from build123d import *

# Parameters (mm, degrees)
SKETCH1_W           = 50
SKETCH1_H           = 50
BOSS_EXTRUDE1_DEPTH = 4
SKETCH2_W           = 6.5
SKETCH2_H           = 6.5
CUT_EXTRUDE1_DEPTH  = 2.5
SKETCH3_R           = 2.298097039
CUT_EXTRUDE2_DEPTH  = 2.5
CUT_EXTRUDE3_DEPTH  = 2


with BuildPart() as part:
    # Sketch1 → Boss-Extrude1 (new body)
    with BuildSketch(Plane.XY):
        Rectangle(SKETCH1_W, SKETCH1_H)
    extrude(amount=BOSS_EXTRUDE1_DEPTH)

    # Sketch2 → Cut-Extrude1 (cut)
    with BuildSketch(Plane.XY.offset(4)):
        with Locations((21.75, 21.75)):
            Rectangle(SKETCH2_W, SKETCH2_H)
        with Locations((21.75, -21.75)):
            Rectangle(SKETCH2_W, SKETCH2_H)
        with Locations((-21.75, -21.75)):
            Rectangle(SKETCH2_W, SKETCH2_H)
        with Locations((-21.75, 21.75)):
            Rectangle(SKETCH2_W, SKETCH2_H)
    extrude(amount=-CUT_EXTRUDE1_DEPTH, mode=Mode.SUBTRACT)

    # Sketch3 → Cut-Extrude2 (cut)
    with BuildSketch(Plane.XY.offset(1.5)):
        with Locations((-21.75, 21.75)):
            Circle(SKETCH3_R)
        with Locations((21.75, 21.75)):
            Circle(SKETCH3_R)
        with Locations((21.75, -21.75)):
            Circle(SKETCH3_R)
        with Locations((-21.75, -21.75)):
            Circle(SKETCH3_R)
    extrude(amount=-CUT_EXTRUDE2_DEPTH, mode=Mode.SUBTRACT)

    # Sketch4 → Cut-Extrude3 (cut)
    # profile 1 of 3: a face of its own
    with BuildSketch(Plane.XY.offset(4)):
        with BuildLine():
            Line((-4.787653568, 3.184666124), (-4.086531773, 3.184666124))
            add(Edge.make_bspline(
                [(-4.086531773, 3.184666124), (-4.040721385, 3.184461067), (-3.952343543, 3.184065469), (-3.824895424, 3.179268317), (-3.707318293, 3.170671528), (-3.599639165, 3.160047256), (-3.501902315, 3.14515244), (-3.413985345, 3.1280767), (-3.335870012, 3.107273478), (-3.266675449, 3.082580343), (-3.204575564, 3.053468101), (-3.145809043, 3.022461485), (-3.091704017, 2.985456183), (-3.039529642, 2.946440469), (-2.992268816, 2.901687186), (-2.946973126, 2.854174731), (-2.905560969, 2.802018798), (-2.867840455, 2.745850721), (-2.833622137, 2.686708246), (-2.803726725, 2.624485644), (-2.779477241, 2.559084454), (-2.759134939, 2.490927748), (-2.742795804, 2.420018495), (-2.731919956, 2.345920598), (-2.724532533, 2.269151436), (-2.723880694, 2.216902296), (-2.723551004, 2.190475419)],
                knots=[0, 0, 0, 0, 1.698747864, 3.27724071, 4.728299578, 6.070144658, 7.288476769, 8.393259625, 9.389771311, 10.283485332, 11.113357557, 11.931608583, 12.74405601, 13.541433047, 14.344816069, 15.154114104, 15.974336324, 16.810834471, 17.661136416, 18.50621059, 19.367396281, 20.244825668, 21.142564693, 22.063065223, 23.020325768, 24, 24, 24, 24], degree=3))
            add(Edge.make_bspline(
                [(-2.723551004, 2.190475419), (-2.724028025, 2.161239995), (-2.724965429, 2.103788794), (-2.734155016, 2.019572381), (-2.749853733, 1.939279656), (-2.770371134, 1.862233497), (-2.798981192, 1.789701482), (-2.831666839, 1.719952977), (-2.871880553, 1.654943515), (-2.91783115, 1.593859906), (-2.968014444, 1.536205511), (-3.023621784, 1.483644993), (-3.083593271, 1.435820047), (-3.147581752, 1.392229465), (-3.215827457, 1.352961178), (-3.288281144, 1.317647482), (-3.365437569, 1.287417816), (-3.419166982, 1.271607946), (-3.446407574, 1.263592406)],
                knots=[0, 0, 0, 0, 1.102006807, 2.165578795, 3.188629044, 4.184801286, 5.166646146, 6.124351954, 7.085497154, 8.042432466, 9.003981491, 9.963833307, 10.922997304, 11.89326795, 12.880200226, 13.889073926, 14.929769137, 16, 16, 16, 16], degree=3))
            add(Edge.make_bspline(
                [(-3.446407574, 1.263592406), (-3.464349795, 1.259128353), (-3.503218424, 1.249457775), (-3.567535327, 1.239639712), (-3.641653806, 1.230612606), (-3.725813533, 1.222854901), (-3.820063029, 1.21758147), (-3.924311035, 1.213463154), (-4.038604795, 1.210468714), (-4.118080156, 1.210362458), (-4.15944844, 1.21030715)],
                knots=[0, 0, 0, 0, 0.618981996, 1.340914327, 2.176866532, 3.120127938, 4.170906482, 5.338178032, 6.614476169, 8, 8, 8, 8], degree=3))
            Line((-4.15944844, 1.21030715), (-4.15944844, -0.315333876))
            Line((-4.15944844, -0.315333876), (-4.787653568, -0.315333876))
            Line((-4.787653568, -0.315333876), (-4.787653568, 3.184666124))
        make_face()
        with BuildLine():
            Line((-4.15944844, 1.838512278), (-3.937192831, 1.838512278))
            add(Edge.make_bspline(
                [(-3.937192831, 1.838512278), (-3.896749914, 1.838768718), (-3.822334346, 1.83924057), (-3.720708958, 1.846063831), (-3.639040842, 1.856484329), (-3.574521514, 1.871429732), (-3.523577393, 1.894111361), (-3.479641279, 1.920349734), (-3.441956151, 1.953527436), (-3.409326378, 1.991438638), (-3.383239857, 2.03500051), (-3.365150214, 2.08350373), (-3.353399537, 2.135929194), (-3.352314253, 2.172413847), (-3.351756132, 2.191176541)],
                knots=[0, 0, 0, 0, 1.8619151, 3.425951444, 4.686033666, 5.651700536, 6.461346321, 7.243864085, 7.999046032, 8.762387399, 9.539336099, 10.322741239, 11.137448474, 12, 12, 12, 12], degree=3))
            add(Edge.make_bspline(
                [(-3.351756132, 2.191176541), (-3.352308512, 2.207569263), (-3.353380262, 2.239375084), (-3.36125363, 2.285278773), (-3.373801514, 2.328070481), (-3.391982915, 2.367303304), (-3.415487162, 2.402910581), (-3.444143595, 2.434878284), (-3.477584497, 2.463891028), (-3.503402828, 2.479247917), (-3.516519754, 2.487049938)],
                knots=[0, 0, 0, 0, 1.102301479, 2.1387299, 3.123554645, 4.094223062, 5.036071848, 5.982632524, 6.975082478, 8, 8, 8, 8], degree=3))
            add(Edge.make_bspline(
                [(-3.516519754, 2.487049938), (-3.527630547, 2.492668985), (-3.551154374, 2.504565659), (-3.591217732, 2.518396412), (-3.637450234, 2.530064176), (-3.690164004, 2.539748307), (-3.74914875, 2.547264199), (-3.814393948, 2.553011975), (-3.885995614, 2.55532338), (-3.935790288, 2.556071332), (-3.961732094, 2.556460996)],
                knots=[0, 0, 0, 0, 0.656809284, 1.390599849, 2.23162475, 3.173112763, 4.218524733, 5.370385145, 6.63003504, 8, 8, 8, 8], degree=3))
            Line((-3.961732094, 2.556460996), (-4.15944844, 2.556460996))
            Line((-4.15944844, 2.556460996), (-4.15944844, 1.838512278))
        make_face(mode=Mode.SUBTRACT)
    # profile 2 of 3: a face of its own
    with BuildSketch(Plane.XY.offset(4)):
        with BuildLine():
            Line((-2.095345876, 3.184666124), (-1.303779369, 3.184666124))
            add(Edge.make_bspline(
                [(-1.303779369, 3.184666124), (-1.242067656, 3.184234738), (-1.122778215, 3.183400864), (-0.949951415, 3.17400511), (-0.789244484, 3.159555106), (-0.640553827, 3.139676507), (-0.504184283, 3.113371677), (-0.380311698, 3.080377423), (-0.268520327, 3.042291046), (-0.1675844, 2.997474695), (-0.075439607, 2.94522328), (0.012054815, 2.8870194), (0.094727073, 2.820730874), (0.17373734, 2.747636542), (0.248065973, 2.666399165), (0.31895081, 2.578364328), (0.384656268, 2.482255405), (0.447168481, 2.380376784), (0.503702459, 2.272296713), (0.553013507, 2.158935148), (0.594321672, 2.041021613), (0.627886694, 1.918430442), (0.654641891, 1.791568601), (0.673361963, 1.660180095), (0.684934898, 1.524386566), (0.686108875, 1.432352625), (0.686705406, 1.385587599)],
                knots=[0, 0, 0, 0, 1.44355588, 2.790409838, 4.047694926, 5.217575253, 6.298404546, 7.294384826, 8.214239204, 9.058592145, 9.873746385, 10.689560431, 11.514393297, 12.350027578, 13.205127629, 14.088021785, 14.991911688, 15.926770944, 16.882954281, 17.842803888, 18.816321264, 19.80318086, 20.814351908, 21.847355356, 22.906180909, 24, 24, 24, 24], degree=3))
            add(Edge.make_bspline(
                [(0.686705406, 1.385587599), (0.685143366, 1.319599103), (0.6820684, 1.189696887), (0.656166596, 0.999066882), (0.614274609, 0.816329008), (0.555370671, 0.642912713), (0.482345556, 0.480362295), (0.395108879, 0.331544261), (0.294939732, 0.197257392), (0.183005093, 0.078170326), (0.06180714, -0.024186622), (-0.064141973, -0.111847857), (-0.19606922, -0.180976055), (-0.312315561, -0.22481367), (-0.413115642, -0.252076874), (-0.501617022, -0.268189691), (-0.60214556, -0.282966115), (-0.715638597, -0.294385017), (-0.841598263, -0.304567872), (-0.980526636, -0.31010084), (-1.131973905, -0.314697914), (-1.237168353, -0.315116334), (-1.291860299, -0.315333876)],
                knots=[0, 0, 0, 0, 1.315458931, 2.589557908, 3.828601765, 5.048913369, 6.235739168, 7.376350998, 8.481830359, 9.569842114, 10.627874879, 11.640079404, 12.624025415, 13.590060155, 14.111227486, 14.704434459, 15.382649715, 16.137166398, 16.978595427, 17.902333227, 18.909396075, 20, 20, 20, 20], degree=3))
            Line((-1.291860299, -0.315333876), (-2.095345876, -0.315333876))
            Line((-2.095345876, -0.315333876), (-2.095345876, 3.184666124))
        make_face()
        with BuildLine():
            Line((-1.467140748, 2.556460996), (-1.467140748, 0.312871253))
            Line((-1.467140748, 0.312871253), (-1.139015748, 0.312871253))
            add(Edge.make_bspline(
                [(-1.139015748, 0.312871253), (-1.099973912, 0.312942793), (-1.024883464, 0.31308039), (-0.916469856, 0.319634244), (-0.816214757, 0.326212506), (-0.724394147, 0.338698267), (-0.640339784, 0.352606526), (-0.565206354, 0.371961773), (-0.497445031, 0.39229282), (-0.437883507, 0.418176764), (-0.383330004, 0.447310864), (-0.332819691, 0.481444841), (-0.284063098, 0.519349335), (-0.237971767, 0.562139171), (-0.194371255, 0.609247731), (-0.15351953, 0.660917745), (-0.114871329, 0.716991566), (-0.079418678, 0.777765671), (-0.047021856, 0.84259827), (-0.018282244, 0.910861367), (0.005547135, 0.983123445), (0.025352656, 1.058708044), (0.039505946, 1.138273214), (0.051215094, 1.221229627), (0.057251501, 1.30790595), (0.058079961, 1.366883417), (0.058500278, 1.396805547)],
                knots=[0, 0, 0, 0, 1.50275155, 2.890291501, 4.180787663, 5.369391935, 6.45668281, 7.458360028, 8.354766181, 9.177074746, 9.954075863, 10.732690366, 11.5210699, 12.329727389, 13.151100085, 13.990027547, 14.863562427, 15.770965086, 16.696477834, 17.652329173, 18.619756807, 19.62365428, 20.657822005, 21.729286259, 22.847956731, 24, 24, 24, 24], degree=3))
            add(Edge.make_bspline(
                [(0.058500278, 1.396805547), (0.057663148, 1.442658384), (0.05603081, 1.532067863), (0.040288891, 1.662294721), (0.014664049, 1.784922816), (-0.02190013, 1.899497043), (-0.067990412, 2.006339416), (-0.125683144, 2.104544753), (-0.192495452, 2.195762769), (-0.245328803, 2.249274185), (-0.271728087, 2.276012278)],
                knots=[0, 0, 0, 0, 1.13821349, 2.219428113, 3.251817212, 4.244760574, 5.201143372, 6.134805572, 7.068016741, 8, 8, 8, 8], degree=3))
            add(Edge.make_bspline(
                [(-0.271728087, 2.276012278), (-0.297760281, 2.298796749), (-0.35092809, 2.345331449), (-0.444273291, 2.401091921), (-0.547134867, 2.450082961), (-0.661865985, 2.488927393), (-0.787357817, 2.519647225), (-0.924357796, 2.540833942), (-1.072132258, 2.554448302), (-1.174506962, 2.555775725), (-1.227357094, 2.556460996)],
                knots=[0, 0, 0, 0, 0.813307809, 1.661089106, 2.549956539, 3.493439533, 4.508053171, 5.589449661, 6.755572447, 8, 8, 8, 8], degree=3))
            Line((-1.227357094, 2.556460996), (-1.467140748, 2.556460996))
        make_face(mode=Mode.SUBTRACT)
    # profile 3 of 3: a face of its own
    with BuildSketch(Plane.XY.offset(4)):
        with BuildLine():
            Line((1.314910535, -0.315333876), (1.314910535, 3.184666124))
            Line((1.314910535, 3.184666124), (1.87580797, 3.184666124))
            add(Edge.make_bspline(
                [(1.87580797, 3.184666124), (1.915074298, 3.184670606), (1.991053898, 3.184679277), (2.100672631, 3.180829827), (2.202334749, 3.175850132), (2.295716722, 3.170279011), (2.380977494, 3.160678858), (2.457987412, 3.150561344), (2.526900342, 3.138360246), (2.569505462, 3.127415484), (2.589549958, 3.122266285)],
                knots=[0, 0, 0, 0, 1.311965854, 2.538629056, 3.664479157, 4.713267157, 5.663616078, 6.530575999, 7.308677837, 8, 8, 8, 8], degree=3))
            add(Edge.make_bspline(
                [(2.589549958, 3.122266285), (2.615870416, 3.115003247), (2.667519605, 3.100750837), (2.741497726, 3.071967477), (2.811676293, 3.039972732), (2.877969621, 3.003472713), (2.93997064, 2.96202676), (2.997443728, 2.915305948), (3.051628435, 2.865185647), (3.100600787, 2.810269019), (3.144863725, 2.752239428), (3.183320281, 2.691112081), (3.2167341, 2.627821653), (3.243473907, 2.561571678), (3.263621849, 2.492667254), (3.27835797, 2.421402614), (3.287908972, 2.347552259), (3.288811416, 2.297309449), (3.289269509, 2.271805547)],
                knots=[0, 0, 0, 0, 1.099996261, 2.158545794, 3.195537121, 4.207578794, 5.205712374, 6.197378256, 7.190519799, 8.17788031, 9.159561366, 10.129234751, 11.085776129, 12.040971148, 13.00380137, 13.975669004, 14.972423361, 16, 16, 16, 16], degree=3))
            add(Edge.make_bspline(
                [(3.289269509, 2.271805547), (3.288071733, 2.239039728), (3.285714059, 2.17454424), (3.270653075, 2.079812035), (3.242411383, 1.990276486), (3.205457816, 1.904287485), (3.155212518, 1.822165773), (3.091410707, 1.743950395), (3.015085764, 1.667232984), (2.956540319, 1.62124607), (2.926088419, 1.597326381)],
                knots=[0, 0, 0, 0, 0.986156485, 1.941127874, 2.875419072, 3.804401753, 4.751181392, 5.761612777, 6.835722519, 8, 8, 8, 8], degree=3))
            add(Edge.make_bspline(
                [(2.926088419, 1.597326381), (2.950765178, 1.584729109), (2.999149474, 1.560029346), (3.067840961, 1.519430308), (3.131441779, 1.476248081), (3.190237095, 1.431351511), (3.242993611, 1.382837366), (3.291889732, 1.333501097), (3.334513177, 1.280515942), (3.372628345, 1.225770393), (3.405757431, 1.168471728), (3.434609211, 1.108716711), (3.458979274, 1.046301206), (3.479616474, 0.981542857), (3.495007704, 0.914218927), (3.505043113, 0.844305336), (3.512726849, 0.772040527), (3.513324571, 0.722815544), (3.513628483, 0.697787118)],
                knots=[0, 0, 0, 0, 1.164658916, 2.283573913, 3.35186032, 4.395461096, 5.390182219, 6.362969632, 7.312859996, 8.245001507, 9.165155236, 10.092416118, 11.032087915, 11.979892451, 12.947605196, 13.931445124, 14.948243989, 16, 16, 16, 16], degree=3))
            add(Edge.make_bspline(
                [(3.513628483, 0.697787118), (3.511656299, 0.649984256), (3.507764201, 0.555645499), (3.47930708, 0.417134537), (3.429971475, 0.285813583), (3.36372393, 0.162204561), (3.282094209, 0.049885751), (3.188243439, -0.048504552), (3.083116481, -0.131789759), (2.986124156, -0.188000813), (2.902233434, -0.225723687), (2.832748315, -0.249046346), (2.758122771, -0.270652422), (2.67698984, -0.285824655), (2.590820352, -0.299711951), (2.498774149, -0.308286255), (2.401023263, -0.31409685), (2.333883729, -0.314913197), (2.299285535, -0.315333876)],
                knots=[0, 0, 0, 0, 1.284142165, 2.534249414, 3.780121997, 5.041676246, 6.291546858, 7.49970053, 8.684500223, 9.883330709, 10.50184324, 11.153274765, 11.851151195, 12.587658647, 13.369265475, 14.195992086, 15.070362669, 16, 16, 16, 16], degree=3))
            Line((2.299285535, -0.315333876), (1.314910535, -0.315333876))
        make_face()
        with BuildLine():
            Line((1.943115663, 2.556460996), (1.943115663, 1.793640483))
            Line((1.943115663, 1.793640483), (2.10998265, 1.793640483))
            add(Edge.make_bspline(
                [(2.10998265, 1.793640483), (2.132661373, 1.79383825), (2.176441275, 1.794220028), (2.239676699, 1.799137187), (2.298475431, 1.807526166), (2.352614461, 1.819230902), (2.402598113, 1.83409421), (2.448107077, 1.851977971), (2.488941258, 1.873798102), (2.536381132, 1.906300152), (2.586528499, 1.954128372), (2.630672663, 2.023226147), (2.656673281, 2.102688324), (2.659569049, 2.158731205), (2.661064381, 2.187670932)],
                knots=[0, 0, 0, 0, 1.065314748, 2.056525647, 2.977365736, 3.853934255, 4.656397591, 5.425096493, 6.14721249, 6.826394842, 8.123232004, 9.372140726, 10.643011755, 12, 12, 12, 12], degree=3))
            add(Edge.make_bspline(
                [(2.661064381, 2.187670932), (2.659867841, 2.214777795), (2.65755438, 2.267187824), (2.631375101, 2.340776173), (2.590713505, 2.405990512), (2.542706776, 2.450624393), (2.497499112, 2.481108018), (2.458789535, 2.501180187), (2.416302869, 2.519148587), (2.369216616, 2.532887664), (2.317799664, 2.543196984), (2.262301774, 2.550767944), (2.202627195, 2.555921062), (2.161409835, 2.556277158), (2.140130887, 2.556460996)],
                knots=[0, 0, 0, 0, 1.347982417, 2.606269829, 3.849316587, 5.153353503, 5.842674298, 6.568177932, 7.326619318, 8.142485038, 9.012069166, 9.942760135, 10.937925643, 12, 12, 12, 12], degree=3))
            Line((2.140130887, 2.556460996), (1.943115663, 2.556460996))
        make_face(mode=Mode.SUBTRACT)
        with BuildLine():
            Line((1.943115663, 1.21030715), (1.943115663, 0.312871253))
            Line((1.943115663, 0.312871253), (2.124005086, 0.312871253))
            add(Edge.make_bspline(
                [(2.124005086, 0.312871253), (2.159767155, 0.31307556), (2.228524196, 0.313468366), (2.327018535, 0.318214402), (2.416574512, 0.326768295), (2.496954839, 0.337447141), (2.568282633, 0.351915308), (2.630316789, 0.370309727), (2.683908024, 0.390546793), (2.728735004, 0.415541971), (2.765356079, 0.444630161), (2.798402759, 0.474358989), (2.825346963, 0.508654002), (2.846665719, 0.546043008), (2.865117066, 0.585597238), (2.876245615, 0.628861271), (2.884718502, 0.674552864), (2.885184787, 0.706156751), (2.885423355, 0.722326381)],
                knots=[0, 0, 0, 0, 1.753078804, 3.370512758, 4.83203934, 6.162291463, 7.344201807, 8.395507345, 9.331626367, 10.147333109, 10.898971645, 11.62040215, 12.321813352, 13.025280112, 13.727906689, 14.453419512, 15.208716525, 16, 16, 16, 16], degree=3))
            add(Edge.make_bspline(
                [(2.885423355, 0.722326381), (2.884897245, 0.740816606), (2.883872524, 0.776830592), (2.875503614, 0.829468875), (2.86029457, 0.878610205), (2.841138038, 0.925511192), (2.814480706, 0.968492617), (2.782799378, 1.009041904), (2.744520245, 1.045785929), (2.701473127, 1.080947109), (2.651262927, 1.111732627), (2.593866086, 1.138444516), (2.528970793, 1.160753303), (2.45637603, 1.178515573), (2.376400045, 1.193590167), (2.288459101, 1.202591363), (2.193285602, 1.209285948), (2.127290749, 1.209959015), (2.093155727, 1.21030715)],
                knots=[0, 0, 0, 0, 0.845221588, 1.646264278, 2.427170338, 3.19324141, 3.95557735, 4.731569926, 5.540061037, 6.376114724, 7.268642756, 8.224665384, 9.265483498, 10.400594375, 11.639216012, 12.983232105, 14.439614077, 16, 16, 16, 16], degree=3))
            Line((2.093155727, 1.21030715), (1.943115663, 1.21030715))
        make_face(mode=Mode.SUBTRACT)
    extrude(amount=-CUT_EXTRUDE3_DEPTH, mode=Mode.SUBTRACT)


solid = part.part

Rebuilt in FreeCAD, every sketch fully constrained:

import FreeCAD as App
import Part
import Sketcher

doc = App.newDocument("Part")
body = doc.addObject("PartDesign::Body", "Body")

# Sketch on XY plane
sketch1 = body.newObject("Sketcher::SketchObject", "Sketch")
sketch1.AttachmentSupport = (doc.getObject("XY_Plane"), [""])
sketch1.MapMode = "FlatFace"
sketch1.addGeometry([
    Part.LineSegment(App.Vector(-25, 25, 0), App.Vector(-25, -25, 0)),
    Part.LineSegment(App.Vector(-25, -25, 0), App.Vector(25, -25, 0)),
    Part.LineSegment(App.Vector(25, -25, 0), App.Vector(25, 25, 0)),
    Part.LineSegment(App.Vector(25, 25, 0), App.Vector(-25, 25, 0)),
], False)
sketch1.addConstraint([
    Sketcher.Constraint("Coincident", 0, 2, 1, 1),
    Sketcher.Constraint("Coincident", 1, 2, 2, 1),
    Sketcher.Constraint("Coincident", 2, 2, 3, 1),
    Sketcher.Constraint("Coincident", 3, 2, 0, 1),
    Sketcher.Constraint("Vertical", 0),
    Sketcher.Constraint("Horizontal", 1),
    Sketcher.Constraint("Vertical", 2),
    Sketcher.Constraint("Horizontal", 3),
    Sketcher.Constraint("Symmetric", 0, 2, 2, 2, -1, 1),
    Sketcher.Constraint("Equal", 3, 0),
    Sketcher.Constraint("DistanceX", 1, 1, 1, 2, 50.0),
])
pad1 = body.newObject("PartDesign::Pad", "Pad")
pad1.Profile = sketch1
pad1.Length = 4

# Sketch on XY plane
sketch2 = body.newObject("Sketcher::SketchObject", "Sketch001")
sketch2.AttachmentSupport = (doc.getObject("XY_Plane"), [""])
sketch2.MapMode = "FlatFace"
sketch2.AttachmentOffset = App.Placement(App.Vector(0, 0, 4), App.Rotation())
sketch2.addGeometry([
    Part.LineSegment(App.Vector(18, 25, 0), App.Vector(18, 18, 0)),  # 0
    Part.LineSegment(App.Vector(18, 18, 0), App.Vector(25, 18, 0)),  # 1
    Part.LineSegment(App.Vector(25, 18, 0), App.Vector(25, 25, 0)),  # 2
    Part.LineSegment(App.Vector(25, 25, 0), App.Vector(18, 25, 0)),  # 3
    Part.LineSegment(App.Vector(18, -18, 0), App.Vector(18, -25, 0)),  # 4
    Part.LineSegment(App.Vector(18, -25, 0), App.Vector(25, -25, 0)),  # 5
    Part.LineSegment(App.Vector(25, -25, 0), App.Vector(25, -18, 0)),  # 6
    Part.LineSegment(App.Vector(25, -18, 0), App.Vector(18, -18, 0)),  # 7
    Part.LineSegment(App.Vector(-25, -18, 0), App.Vector(-25, -25, 0)),  # 8
    Part.LineSegment(App.Vector(-25, -25, 0), App.Vector(-18, -25, 0)),  # 9
    Part.LineSegment(App.Vector(-18, -25, 0), App.Vector(-18, -18, 0)),  # 10
    Part.LineSegment(App.Vector(-18, -18, 0), App.Vector(-25, -18, 0)),  # 11
    Part.LineSegment(App.Vector(-25, 25, 0), App.Vector(-25, 18, 0)),  # 12
    Part.LineSegment(App.Vector(-25, 18, 0), App.Vector(-18, 18, 0)),  # 13
    Part.LineSegment(App.Vector(-18, 18, 0), App.Vector(-18, 25, 0)),  # 14
    Part.LineSegment(App.Vector(-18, 25, 0), App.Vector(-25, 25, 0)),  # 15
], False)
sketch2.addConstraint([
    Sketcher.Constraint("Coincident", 0, 2, 1, 1),
    Sketcher.Constraint("Coincident", 1, 2, 2, 1),
    Sketcher.Constraint("Coincident", 2, 2, 3, 1),
    Sketcher.Constraint("Coincident", 3, 2, 0, 1),
    Sketcher.Constraint("Coincident", 4, 2, 5, 1),
    Sketcher.Constraint("Coincident", 5, 2, 6, 1),
    Sketcher.Constraint("Coincident", 6, 2, 7, 1),
    Sketcher.Constraint("Coincident", 7, 2, 4, 1),
    Sketcher.Constraint("Coincident", 8, 2, 9, 1),
    Sketcher.Constraint("Coincident", 9, 2, 10, 1),
    Sketcher.Constraint("Coincident", 10, 2, 11, 1),
    Sketcher.Constraint("Coincident", 11, 2, 8, 1),
    Sketcher.Constraint("Coincident", 12, 2, 13, 1),
    Sketcher.Constraint("Coincident", 13, 2, 14, 1),
    Sketcher.Constraint("Coincident", 14, 2, 15, 1),
    Sketcher.Constraint("Coincident", 15, 2, 12, 1),
    Sketcher.Constraint("Vertical", 0),
    Sketcher.Constraint("Horizontal", 1),
    Sketcher.Constraint("Vertical", 2),
    Sketcher.Constraint("Horizontal", 3),
    Sketcher.Constraint("Vertical", 4),
    Sketcher.Constraint("Horizontal", 5),
    Sketcher.Constraint("Vertical", 6),
    Sketcher.Constraint("Horizontal", 7),
    Sketcher.Constraint("Vertical", 8),
    Sketcher.Constraint("Horizontal", 9),
    Sketcher.Constraint("Vertical", 10),
    Sketcher.Constraint("Horizontal", 11),
    Sketcher.Constraint("Vertical", 12),
    Sketcher.Constraint("Horizontal", 13),
    Sketcher.Constraint("Vertical", 14),
    Sketcher.Constraint("Horizontal", 15),
    Sketcher.Constraint("Symmetric", 2, 2, 8, 2, -1, 1),
    Sketcher.Constraint("Symmetric", 0, 2, 10, 2, -1, 1),
    Sketcher.Constraint("Symmetric", 6, 2, 12, 2, -1, 1),
    Sketcher.Constraint("Symmetric", 4, 2, 14, 2, -1, 1),
    Sketcher.Constraint("Symmetric", 5, 2, 8, 2, -2),
    Sketcher.Constraint("Symmetric", 7, 2, 10, 2, -2),
    Sketcher.Constraint("Equal", 15, 0),
    Sketcher.Constraint("DistanceX", 1, 1, 1, 2, 6.5),
    Sketcher.Constraint("DistanceX", -1, 1, 1, 2, 25.0),
    Sketcher.Constraint("DistanceY", -1, 1, 2, 2, 25.0),
])
pocket1 = body.newObject("PartDesign::Pocket", "Pocket")
pocket1.Profile = sketch2
pocket1.Length = 2.5

# Sketch on XY plane
sketch3 = body.newObject("Sketcher::SketchObject", "Sketch002")
sketch3.AttachmentSupport = (doc.getObject("XY_Plane"), [""])
sketch3.MapMode = "FlatFace"
sketch3.AttachmentOffset = App.Placement(App.Vector(0, 0, 1.5), App.Rotation())
sketch3.addGeometry([
    Part.Circle(App.Vector(-21.8, 21.8, 0), App.Vector(0, 0, 1), 2.3),
    Part.Circle(App.Vector(21.8, 21.8, 0), App.Vector(0, 0, 1), 2.3),
    Part.Circle(App.Vector(21.8, -21.8, 0), App.Vector(0, 0, 1), 2.3),
    Part.Circle(App.Vector(-21.8, -21.8, 0), App.Vector(0, 0, 1), 2.3),
], False)
sketch3.addConstraint([
    Sketcher.Constraint("Equal", 0, 1),
    Sketcher.Constraint("Equal", 1, 2),
    Sketcher.Constraint("Equal", 2, 3),
    Sketcher.Constraint("Symmetric", 0, 3, 2, 3, -1, 1),
    Sketcher.Constraint("Symmetric", 1, 3, 3, 3, -1, 1),
    Sketcher.Constraint("Symmetric", 0, 3, 1, 3, -2),
    Sketcher.Constraint("DistanceX", 0, 3, 1, 3, 43.5),
    Sketcher.Constraint("DistanceY", 2, 3, 1, 3, 43.5),
    Sketcher.Constraint("Diameter", 0, 4.596194),
])
pocket2 = body.newObject("PartDesign::Pocket", "Pocket001")
pocket2.Profile = sketch3
pocket2.Length = 2.5

# Sketch on XY plane
sketch4 = body.newObject("Sketcher::SketchObject", "Sketch003")
sketch4.AttachmentSupport = (doc.getObject("XY_Plane"), [""])
sketch4.MapMode = "FlatFace"
sketch4.AttachmentOffset = App.Placement(App.Vector(0, 0, 4), App.Rotation())
sketch4.addGeometry([
    Part.LineSegment(App.Vector(-4.086532, 3.184666, 0), App.Vector(-4.787654, 3.184666, 0)),  # 0
    Part.LineSegment(App.Vector(-4.787654, 3.184666, 0), App.Vector(-4.787654, -0.315334, 0)),  # 1
    Part.LineSegment(App.Vector(-4.787654, -0.315334, 0), App.Vector(-4.159448, -0.315334, 0)),  # 2
    Part.LineSegment(App.Vector(-4.159448, -0.315334, 0), App.Vector(-4.159448, 1.210307, 0)),  # 3
    Part.BSplineCurve([App.Vector(-3.446408, 1.263592, 0), App.Vector(-3.46435, 1.259128, 0), App.Vector(-3.503218, 1.249458, 0), App.Vector(-3.567535, 1.23964, 0), App.Vector(-3.641654, 1.230613, 0), App.Vector(-3.725814, 1.222855, 0), App.Vector(-3.820063, 1.217581, 0), App.Vector(-3.924311, 1.213463, 0), App.Vector(-4.038605, 1.210469, 0), App.Vector(-4.11808, 1.210362, 0), App.Vector(-4.159448, 1.210307, 0)], [4, 1, 1, 1, 1, 1, 1, 1, 4], [0, 0.618981996, 1.340914327, 2.176866532, 3.120127938, 4.170906482, 5.338178032, 6.614476169, 8], False, 3, [1, 1, 1, 1, 1, 1, 1, 1, 1, 1, 1], False),  # 4
    Part.BSplineCurve([App.Vector(-2.723551, 2.190475, 0), App.Vector(-2.724028, 2.16124, 0), App.Vector(-2.724965, 2.103789, 0), App.Vector(-2.734155, 2.019572, 0), App.Vector(-2.749854, 1.93928, 0), App.Vector(-2.770371, 1.862233, 0), App.Vector(-2.798981, 1.789701, 0), App.Vector(-2.831667, 1.719953, 0), App.Vector(-2.871881, 1.654944, 0), App.Vector(-2.917831, 1.59386, 0), App.Vector(-2.968014, 1.536206, 0), App.Vector(-3.023622, 1.483645, 0), App.Vector(-3.083593, 1.43582, 0), App.Vector(-3.147582, 1.392229, 0), App.Vector(-3.215827, 1.352961, 0), App.Vector(-3.288281, 1.317647, 0), App.Vector(-3.365438, 1.287418, 0), App.Vector(-3.419167, 1.271608, 0), App.Vector(-3.446408, 1.263592, 0)], [4, 1, 1, 1, 1, 1, 1, 1, 1, 1, 1, 1, 1, 1, 1, 1, 4], [0, 1.102006807, 2.165578795, 3.188629044, 4.184801286, 5.166646146, 6.124351954, 7.085497154, 8.042432466, 9.003981491, 9.963833307, 10.922997304, 11.89326795, 12.880200226, 13.889073926, 14.929769137, 16], False, 3, [1, 1, 1, 1, 1, 1, 1, 1, 1, 1, 1, 1, 1, 1, 1, 1, 1, 1, 1], False),  # 5
    Part.BSplineCurve([App.Vector(-4.086532, 3.184666, 0), App.Vector(-4.040721, 3.184461, 0), App.Vector(-3.952344, 3.184065, 0), App.Vector(-3.824895, 3.179268, 0), App.Vector(-3.707318, 3.170672, 0), App.Vector(-3.599639, 3.160047, 0), App.Vector(-3.501902, 3.145152, 0), App.Vector(-3.413985, 3.128077, 0), App.Vector(-3.33587, 3.107273, 0), App.Vector(-3.266675, 3.08258, 0), App.Vector(-3.204576, 3.053468, 0), App.Vector(-3.145809, 3.022461, 0), App.Vector(-3.091704, 2.985456, 0), App.Vector(-3.03953, 2.94644, 0), App.Vector(-2.992269, 2.901687, 0), App.Vector(-2.946973, 2.854175, 0), App.Vector(-2.905561, 2.802019, 0), App.Vector(-2.86784, 2.745851, 0), App.Vector(-2.833622, 2.686708, 0), App.Vector(-2.803727, 2.624486, 0), App.Vector(-2.779477, 2.559084, 0), App.Vector(-2.759135, 2.490928, 0), App.Vector(-2.742796, 2.420018, 0), App.Vector(-2.73192, 2.345921, 0), App.Vector(-2.724533, 2.269151, 0), App.Vector(-2.723881, 2.216902, 0), App.Vector(-2.723551, 2.190475, 0)], [4, 1, 1, 1, 1, 1, 1, 1, 1, 1, 1, 1, 1, 1, 1, 1, 1, 1, 1, 1, 1, 1, 1, 1, 4], [0, 1.698747864, 3.27724071, 4.728299578, 6.070144658, 7.288476769, 8.393259625, 9.389771311, 10.283485332, 11.113357557, 11.931608583, 12.74405601, 13.541433047, 14.344816069, 15.154114104, 15.974336324, 16.810834471, 17.661136416, 18.50621059, 19.367396281, 20.244825668, 21.142564693, 22.063065223, 23.020325768, 24], False, 3, [1, 1, 1, 1, 1, 1, 1, 1, 1, 1, 1, 1, 1, 1, 1, 1, 1, 1, 1, 1, 1, 1, 1, 1, 1, 1, 1], False),  # 6
    Part.LineSegment(App.Vector(-4.159448, 1.838512, 0), App.Vector(-4.159448, 2.556461, 0)),  # 7
    Part.LineSegment(App.Vector(-4.159448, 2.556461, 0), App.Vector(-3.961732, 2.556461, 0)),  # 8
    Part.BSplineCurve([App.Vector(-3.51652, 2.48705, 0), App.Vector(-3.527631, 2.492669, 0), App.Vector(-3.551154, 2.504566, 0), App.Vector(-3.591218, 2.518396, 0), App.Vector(-3.63745, 2.530064, 0), App.Vector(-3.690164, 2.539748, 0), App.Vector(-3.749149, 2.547264, 0), App.Vector(-3.814394, 2.553012, 0), App.Vector(-3.885996, 2.555323, 0), App.Vector(-3.93579, 2.556071, 0), App.Vector(-3.961732, 2.556461, 0)], [4, 1, 1, 1, 1, 1, 1, 1, 4], [0, 0.656809284, 1.390599849, 2.23162475, 3.173112763, 4.218524733, 5.370385145, 6.63003504, 8], False, 3, [1, 1, 1, 1, 1, 1, 1, 1, 1, 1, 1], False),  # 9
    Part.BSplineCurve([App.Vector(-3.351756, 2.191177, 0), App.Vector(-3.352309, 2.207569, 0), App.Vector(-3.35338, 2.239375, 0), App.Vector(-3.361254, 2.285279, 0), App.Vector(-3.373802, 2.32807, 0), App.Vector(-3.391983, 2.367303, 0), App.Vector(-3.415487, 2.402911, 0), App.Vector(-3.444144, 2.434878, 0), App.Vector(-3.477584, 2.463891, 0), App.Vector(-3.503403, 2.479248, 0), App.Vector(-3.51652, 2.48705, 0)], [4, 1, 1, 1, 1, 1, 1, 1, 4], [0, 1.102301479, 2.1387299, 3.123554645, 4.094223062, 5.036071848, 5.982632524, 6.975082478, 8], False, 3, [1, 1, 1, 1, 1, 1, 1, 1, 1, 1, 1], False),  # 10
    Part.BSplineCurve([App.Vector(-3.937193, 1.838512, 0), App.Vector(-3.89675, 1.838769, 0), App.Vector(-3.822334, 1.839241, 0), App.Vector(-3.720709, 1.846064, 0), App.Vector(-3.639041, 1.856484, 0), App.Vector(-3.574522, 1.87143, 0), App.Vector(-3.523577, 1.894111, 0), App.Vector(-3.479641, 1.92035, 0), App.Vector(-3.441956, 1.953527, 0), App.Vector(-3.409326, 1.991439, 0), App.Vector(-3.38324, 2.035001, 0), App.Vector(-3.36515, 2.083504, 0), App.Vector(-3.3534, 2.135929, 0), App.Vector(-3.352314, 2.172414, 0), App.Vector(-3.351756, 2.191177, 0)], [4, 1, 1, 1, 1, 1, 1, 1, 1, 1, 1, 1, 4], [0, 1.8619151, 3.425951444, 4.686033666, 5.651700536, 6.461346321, 7.243864085, 7.999046032, 8.762387399, 9.539336099, 10.322741239, 11.137448474, 12], False, 3, [1, 1, 1, 1, 1, 1, 1, 1, 1, 1, 1, 1, 1, 1, 1], False),  # 11
    Part.LineSegment(App.Vector(-3.937193, 1.838512, 0), App.Vector(-4.159448, 1.838512, 0)),  # 12
    Part.LineSegment(App.Vector(-1.303779, 3.184666, 0), App.Vector(-2.095346, 3.184666, 0)),  # 13
    Part.LineSegment(App.Vector(-2.095346, 3.184666, 0), App.Vector(-2.095346, -0.315334, 0)),  # 14
    Part.LineSegment(App.Vector(-2.095346, -0.315334, 0), App.Vector(-1.29186, -0.315334, 0)),  # 15
    Part.BSplineCurve([App.Vector(0.686705, 1.385588, 0), App.Vector(0.685143, 1.319599, 0), App.Vector(0.682068, 1.189697, 0), App.Vector(0.656167, 0.999067, 0), App.Vector(0.614275, 0.816329, 0), App.Vector(0.555371, 0.642913, 0), App.Vector(0.482346, 0.480362, 0), App.Vector(0.395109, 0.331544, 0), App.Vector(0.29494, 0.197257, 0), App.Vector(0.183005, 0.07817, 0), App.Vector(0.061807, -0.024187, 0), App.Vector(-0.064142, -0.111848, 0), App.Vector(-0.196069, -0.180976, 0), App.Vector(-0.312316, -0.224814, 0), App.Vector(-0.413116, -0.252077, 0), App.Vector(-0.501617, -0.26819, 0), App.Vector(-0.602146, -0.282966, 0), App.Vector(-0.715639, -0.294385, 0), App.Vector(-0.841598, -0.304568, 0), App.Vector(-0.980527, -0.310101, 0), App.Vector(-1.131974, -0.314698, 0), App.Vector(-1.237168, -0.315116, 0), App.Vector(-1.29186, -0.315334, 0)], [4, 1, 1, 1, 1, 1, 1, 1, 1, 1, 1, 1, 1, 1, 1, 1, 1, 1, 1, 1, 4], [0, 1.315458931, 2.589557908, 3.828601765, 5.048913369, 6.235739168, 7.376350998, 8.481830359, 9.569842114, 10.627874879, 11.640079404, 12.624025415, 13.590060155, 14.111227486, 14.704434459, 15.382649715, 16.137166398, 16.978595427, 17.902333227, 18.909396075, 20], False, 3, [1, 1, 1, 1, 1, 1, 1, 1, 1, 1, 1, 1, 1, 1, 1, 1, 1, 1, 1, 1, 1, 1, 1], False),  # 16
    Part.BSplineCurve([App.Vector(-1.303779, 3.184666, 0), App.Vector(-1.242068, 3.184235, 0), App.Vector(-1.122778, 3.183401, 0), App.Vector(-0.949951, 3.174005, 0), App.Vector(-0.789244, 3.159555, 0), App.Vector(-0.640554, 3.139677, 0), App.Vector(-0.504184, 3.113372, 0), App.Vector(-0.380312, 3.080377, 0), App.Vector(-0.26852, 3.042291, 0), App.Vector(-0.167584, 2.997475, 0), App.Vector(-0.07544, 2.945223, 0), App.Vector(0.012055, 2.887019, 0), App.Vector(0.094727, 2.820731, 0), App.Vector(0.173737, 2.747637, 0), App.Vector(0.248066, 2.666399, 0), App.Vector(0.318951, 2.578364, 0), App.Vector(0.384656, 2.482255, 0), App.Vector(0.447168, 2.380377, 0), App.Vector(0.503702, 2.272297, 0), App.Vector(0.553014, 2.158935, 0), App.Vector(0.594322, 2.041022, 0), App.Vector(0.627887, 1.91843, 0), App.Vector(0.654642, 1.791569, 0), App.Vector(0.673362, 1.66018, 0), App.Vector(0.684935, 1.524387, 0), App.Vector(0.686109, 1.432353, 0), App.Vector(0.686705, 1.385588, 0)], [4, 1, 1, 1, 1, 1, 1, 1, 1, 1, 1, 1, 1, 1, 1, 1, 1, 1, 1, 1, 1, 1, 1, 1, 4], [0, 1.44355588, 2.790409838, 4.047694926, 5.217575253, 6.298404546, 7.294384826, 8.214239204, 9.058592145, 9.873746385, 10.689560431, 11.514393297, 12.350027578, 13.205127629, 14.088021785, 14.991911688, 15.926770944, 16.882954281, 17.842803888, 18.816321264, 19.80318086, 20.814351908, 21.847355356, 22.906180909, 24], False, 3, [1, 1, 1, 1, 1, 1, 1, 1, 1, 1, 1, 1, 1, 1, 1, 1, 1, 1, 1, 1, 1, 1, 1, 1, 1, 1, 1], False),  # 17
    Part.LineSegment(App.Vector(-1.467141, 2.556461, 0), App.Vector(-1.227357, 2.556461, 0)),  # 18
    Part.BSplineCurve([App.Vector(-0.271728, 2.276012, 0), App.Vector(-0.29776, 2.298797, 0), App.Vector(-0.350928, 2.345331, 0), App.Vector(-0.444273, 2.401092, 0), App.Vector(-0.547135, 2.450083, 0), App.Vector(-0.661866, 2.488927, 0), App.Vector(-0.787358, 2.519647, 0), App.Vector(-0.924358, 2.540834, 0), App.Vector(-1.072132, 2.554448, 0), App.Vector(-1.174507, 2.555776, 0), App.Vector(-1.227357, 2.556461, 0)], [4, 1, 1, 1, 1, 1, 1, 1, 4], [0, 0.813307809, 1.661089106, 2.549956539, 3.493439533, 4.508053171, 5.589449661, 6.755572447, 8], False, 3, [1, 1, 1, 1, 1, 1, 1, 1, 1, 1, 1], False),  # 19
    Part.BSplineCurve([App.Vector(0.0585, 1.396806, 0), App.Vector(0.057663, 1.442658, 0), App.Vector(0.056031, 1.532068, 0), App.Vector(0.040289, 1.662295, 0), App.Vector(0.014664, 1.784923, 0), App.Vector(-0.0219, 1.899497, 0), App.Vector(-0.06799, 2.006339, 0), App.Vector(-0.125683, 2.104545, 0), App.Vector(-0.192495, 2.195763, 0), App.Vector(-0.245329, 2.249274, 0), App.Vector(-0.271728, 2.276012, 0)], [4, 1, 1, 1, 1, 1, 1, 1, 4], [0, 1.13821349, 2.219428113, 3.251817212, 4.244760574, 5.201143372, 6.134805572, 7.068016741, 8], False, 3, [1, 1, 1, 1, 1, 1, 1, 1, 1, 1, 1], False),  # 20
    Part.BSplineCurve([App.Vector(-1.139016, 0.312871, 0), App.Vector(-1.099974, 0.312943, 0), App.Vector(-1.024883, 0.31308, 0), App.Vector(-0.91647, 0.319634, 0), App.Vector(-0.816215, 0.326213, 0), App.Vector(-0.724394, 0.338698, 0), App.Vector(-0.64034, 0.352607, 0), App.Vector(-0.565206, 0.371962, 0), App.Vector(-0.497445, 0.392293, 0), App.Vector(-0.437884, 0.418177, 0), App.Vector(-0.38333, 0.447311, 0), App.Vector(-0.33282, 0.481445, 0), App.Vector(-0.284063, 0.519349, 0), App.Vector(-0.237972, 0.562139, 0), App.Vector(-0.194371, 0.609248, 0), App.Vector(-0.15352, 0.660918, 0), App.Vector(-0.114871, 0.716992, 0), App.Vector(-0.079419, 0.777766, 0), App.Vector(-0.047022, 0.842598, 0), App.Vector(-0.018282, 0.910861, 0), App.Vector(0.005547, 0.983123, 0), App.Vector(0.025353, 1.058708, 0), App.Vector(0.039506, 1.138273, 0), App.Vector(0.051215, 1.22123, 0), App.Vector(0.057252, 1.307906, 0), App.Vector(0.05808, 1.366883, 0), App.Vector(0.0585, 1.396806, 0)], [4, 1, 1, 1, 1, 1, 1, 1, 1, 1, 1, 1, 1, 1, 1, 1, 1, 1, 1, 1, 1, 1, 1, 1, 4], [0, 1.50275155, 2.890291501, 4.180787663, 5.369391935, 6.45668281, 7.458360028, 8.354766181, 9.177074746, 9.954075863, 10.732690366, 11.5210699, 12.329727389, 13.151100085, 13.990027547, 14.863562427, 15.770965086, 16.696477834, 17.652329173, 18.619756807, 19.62365428, 20.657822005, 21.729286259, 22.847956731, 24], False, 3, [1, 1, 1, 1, 1, 1, 1, 1, 1, 1, 1, 1, 1, 1, 1, 1, 1, 1, 1, 1, 1, 1, 1, 1, 1, 1, 1], False),  # 21
    Part.LineSegment(App.Vector(-1.139016, 0.312871, 0), App.Vector(-1.467141, 0.312871, 0)),  # 22
    Part.LineSegment(App.Vector(-1.467141, 0.312871, 0), App.Vector(-1.467141, 2.556461, 0)),  # 23
    Part.LineSegment(App.Vector(1.314911, 3.184666, 0), App.Vector(1.314911, -0.315334, 0)),  # 24
    Part.LineSegment(App.Vector(1.314911, -0.315334, 0), App.Vector(2.299286, -0.315334, 0)),  # 25
    Part.BSplineCurve([App.Vector(3.513628, 0.697787, 0), App.Vector(3.511656, 0.649984, 0), App.Vector(3.507764, 0.555645, 0), App.Vector(3.479307, 0.417135, 0), App.Vector(3.429971, 0.285814, 0), App.Vector(3.363724, 0.162205, 0), App.Vector(3.282094, 0.049886, 0), App.Vector(3.188243, -0.048505, 0), App.Vector(3.083116, -0.13179, 0), App.Vector(2.986124, -0.188001, 0), App.Vector(2.902233, -0.225724, 0), App.Vector(2.832748, -0.249046, 0), App.Vector(2.758123, -0.270652, 0), App.Vector(2.67699, -0.285825, 0), App.Vector(2.59082, -0.299712, 0), App.Vector(2.498774, -0.308286, 0), App.Vector(2.401023, -0.314097, 0), App.Vector(2.333884, -0.314913, 0), App.Vector(2.299286, -0.315334, 0)], [4, 1, 1, 1, 1, 1, 1, 1, 1, 1, 1, 1, 1, 1, 1, 1, 4], [0, 1.284142165, 2.534249414, 3.780121997, 5.041676246, 6.291546858, 7.49970053, 8.684500223, 9.883330709, 10.50184324, 11.153274765, 11.851151195, 12.587658647, 13.369265475, 14.195992086, 15.070362669, 16], False, 3, [1, 1, 1, 1, 1, 1, 1, 1, 1, 1, 1, 1, 1, 1, 1, 1, 1, 1, 1], False),  # 26
    Part.BSplineCurve([App.Vector(2.926088, 1.597326, 0), App.Vector(2.950765, 1.584729, 0), App.Vector(2.999149, 1.560029, 0), App.Vector(3.067841, 1.51943, 0), App.Vector(3.131442, 1.476248, 0), App.Vector(3.190237, 1.431352, 0), App.Vector(3.242994, 1.382837, 0), App.Vector(3.29189, 1.333501, 0), App.Vector(3.334513, 1.280516, 0), App.Vector(3.372628, 1.22577, 0), App.Vector(3.405757, 1.168472, 0), App.Vector(3.434609, 1.108717, 0), App.Vector(3.458979, 1.046301, 0), App.Vector(3.479616, 0.981543, 0), App.Vector(3.495008, 0.914219, 0), App.Vector(3.505043, 0.844305, 0), App.Vector(3.512727, 0.772041, 0), App.Vector(3.513325, 0.722816, 0), App.Vector(3.513628, 0.697787, 0)], [4, 1, 1, 1, 1, 1, 1, 1, 1, 1, 1, 1, 1, 1, 1, 1, 4], [0, 1.164658916, 2.283573913, 3.35186032, 4.395461096, 5.390182219, 6.362969632, 7.312859996, 8.245001507, 9.165155236, 10.092416118, 11.032087915, 11.979892451, 12.947605196, 13.931445124, 14.948243989, 16], False, 3, [1, 1, 1, 1, 1, 1, 1, 1, 1, 1, 1, 1, 1, 1, 1, 1, 1, 1, 1], False),  # 27
    Part.BSplineCurve([App.Vector(3.28927, 2.271806, 0), App.Vector(3.288072, 2.23904, 0), App.Vector(3.285714, 2.174544, 0), App.Vector(3.270653, 2.079812, 0), App.Vector(3.242411, 1.990276, 0), App.Vector(3.205458, 1.904287, 0), App.Vector(3.155213, 1.822166, 0), App.Vector(3.091411, 1.74395, 0), App.Vector(3.015086, 1.667233, 0), App.Vector(2.95654, 1.621246, 0), App.Vector(2.926088, 1.597326, 0)], [4, 1, 1, 1, 1, 1, 1, 1, 4], [0, 0.986156485, 1.941127874, 2.875419072, 3.804401753, 4.751181392, 5.761612777, 6.835722519, 8], False, 3, [1, 1, 1, 1, 1, 1, 1, 1, 1, 1, 1], False),  # 28
    Part.BSplineCurve([App.Vector(2.58955, 3.122266, 0), App.Vector(2.61587, 3.115003, 0), App.Vector(2.66752, 3.100751, 0), App.Vector(2.741498, 3.071967, 0), App.Vector(2.811676, 3.039973, 0), App.Vector(2.87797, 3.003473, 0), App.Vector(2.939971, 2.962027, 0), App.Vector(2.997444, 2.915306, 0), App.Vector(3.051628, 2.865186, 0), App.Vector(3.100601, 2.810269, 0), App.Vector(3.144864, 2.752239, 0), App.Vector(3.18332, 2.691112, 0), App.Vector(3.216734, 2.627822, 0), App.Vector(3.243474, 2.561572, 0), App.Vector(3.263622, 2.492667, 0), App.Vector(3.278358, 2.421403, 0), App.Vector(3.287909, 2.347552, 0), App.Vector(3.288811, 2.297309, 0), App.Vector(3.28927, 2.271806, 0)], [4, 1, 1, 1, 1, 1, 1, 1, 1, 1, 1, 1, 1, 1, 1, 1, 4], [0, 1.099996261, 2.158545794, 3.195537121, 4.207578794, 5.205712374, 6.197378256, 7.190519799, 8.17788031, 9.159561366, 10.129234751, 11.085776129, 12.040971148, 13.00380137, 13.975669004, 14.972423361, 16], False, 3, [1, 1, 1, 1, 1, 1, 1, 1, 1, 1, 1, 1, 1, 1, 1, 1, 1, 1, 1], False),  # 29
    Part.BSplineCurve([App.Vector(1.875808, 3.184666, 0), App.Vector(1.915074, 3.184671, 0), App.Vector(1.991054, 3.184679, 0), App.Vector(2.100673, 3.18083, 0), App.Vector(2.202335, 3.17585, 0), App.Vector(2.295717, 3.170279, 0), App.Vector(2.380977, 3.160679, 0), App.Vector(2.457987, 3.150561, 0), App.Vector(2.5269, 3.13836, 0), App.Vector(2.569505, 3.127415, 0), App.Vector(2.58955, 3.122266, 0)], [4, 1, 1, 1, 1, 1, 1, 1, 4], [0, 1.311965854, 2.538629056, 3.664479157, 4.713267157, 5.663616078, 6.530575999, 7.308677837, 8], False, 3, [1, 1, 1, 1, 1, 1, 1, 1, 1, 1, 1], False),  # 30
    Part.LineSegment(App.Vector(1.875808, 3.184666, 0), App.Vector(1.314911, 3.184666, 0)),  # 31
    Part.LineSegment(App.Vector(1.943116, 1.210307, 0), App.Vector(2.093156, 1.210307, 0)),  # 32
    Part.BSplineCurve([App.Vector(2.885423, 0.722326, 0), App.Vector(2.884897, 0.740817, 0), App.Vector(2.883873, 0.776831, 0), App.Vector(2.875504, 0.829469, 0), App.Vector(2.860295, 0.87861, 0), App.Vector(2.841138, 0.925511, 0), App.Vector(2.814481, 0.968493, 0), App.Vector(2.782799, 1.009042, 0), App.Vector(2.74452, 1.045786, 0), App.Vector(2.701473, 1.080947, 0), App.Vector(2.651263, 1.111733, 0), App.Vector(2.593866, 1.138445, 0), App.Vector(2.528971, 1.160753, 0), App.Vector(2.456376, 1.178516, 0), App.Vector(2.3764, 1.19359, 0), App.Vector(2.288459, 1.202591, 0), App.Vector(2.193286, 1.209286, 0), App.Vector(2.127291, 1.209959, 0), App.Vector(2.093156, 1.210307, 0)], [4, 1, 1, 1, 1, 1, 1, 1, 1, 1, 1, 1, 1, 1, 1, 1, 4], [0, 0.845221588, 1.646264278, 2.427170338, 3.19324141, 3.95557735, 4.731569926, 5.540061037, 6.376114724, 7.268642756, 8.224665384, 9.265483498, 10.400594375, 11.639216012, 12.983232105, 14.439614077, 16], False, 3, [1, 1, 1, 1, 1, 1, 1, 1, 1, 1, 1, 1, 1, 1, 1, 1, 1, 1, 1], False),  # 33
    Part.BSplineCurve([App.Vector(2.124005, 0.312871, 0), App.Vector(2.159767, 0.313076, 0), App.Vector(2.228524, 0.313468, 0), App.Vector(2.327019, 0.318214, 0), App.Vector(2.416575, 0.326768, 0), App.Vector(2.496955, 0.337447, 0), App.Vector(2.568283, 0.351915, 0), App.Vector(2.630317, 0.37031, 0), App.Vector(2.683908, 0.390547, 0), App.Vector(2.728735, 0.415542, 0), App.Vector(2.765356, 0.44463, 0), App.Vector(2.798403, 0.474359, 0), App.Vector(2.825347, 0.508654, 0), App.Vector(2.846666, 0.546043, 0), App.Vector(2.865117, 0.585597, 0), App.Vector(2.876246, 0.628861, 0), App.Vector(2.884719, 0.674553, 0), App.Vector(2.885185, 0.706157, 0), App.Vector(2.885423, 0.722326, 0)], [4, 1, 1, 1, 1, 1, 1, 1, 1, 1, 1, 1, 1, 1, 1, 1, 4], [0, 1.753078804, 3.370512758, 4.83203934, 6.162291463, 7.344201807, 8.395507345, 9.331626367, 10.147333109, 10.898971645, 11.62040215, 12.321813352, 13.025280112, 13.727906689, 14.453419512, 15.208716525, 16], False, 3, [1, 1, 1, 1, 1, 1, 1, 1, 1, 1, 1, 1, 1, 1, 1, 1, 1, 1, 1], False),  # 34
    Part.LineSegment(App.Vector(2.124005, 0.312871, 0), App.Vector(1.943116, 0.312871, 0)),  # 35
    Part.LineSegment(App.Vector(1.943116, 0.312871, 0), App.Vector(1.943116, 1.210307, 0)),  # 36
    Part.LineSegment(App.Vector(1.943116, 2.556461, 0), App.Vector(2.140131, 2.556461, 0)),  # 37
    Part.BSplineCurve([App.Vector(2.661064, 2.187671, 0), App.Vector(2.659868, 2.214778, 0), App.Vector(2.657554, 2.267188, 0), App.Vector(2.631375, 2.340776, 0), App.Vector(2.590714, 2.405991, 0), App.Vector(2.542707, 2.450624, 0), App.Vector(2.497499, 2.481108, 0), App.Vector(2.45879, 2.50118, 0), App.Vector(2.416303, 2.519149, 0), App.Vector(2.369217, 2.532888, 0), App.Vector(2.3178, 2.543197, 0), App.Vector(2.262302, 2.550768, 0), App.Vector(2.202627, 2.555921, 0), App.Vector(2.16141, 2.556277, 0), App.Vector(2.140131, 2.556461, 0)], [4, 1, 1, 1, 1, 1, 1, 1, 1, 1, 1, 1, 4], [0, 1.347982417, 2.606269829, 3.849316587, 5.153353503, 5.842674298, 6.568177932, 7.326619318, 8.142485038, 9.012069166, 9.942760135, 10.937925643, 12], False, 3, [1, 1, 1, 1, 1, 1, 1, 1, 1, 1, 1, 1, 1, 1, 1], False),  # 38
    Part.BSplineCurve([App.Vector(2.109983, 1.79364, 0), App.Vector(2.132661, 1.793838, 0), App.Vector(2.176441, 1.79422, 0), App.Vector(2.239677, 1.799137, 0), App.Vector(2.298475, 1.807526, 0), App.Vector(2.352614, 1.819231, 0), App.Vector(2.402598, 1.834094, 0), App.Vector(2.448107, 1.851978, 0), App.Vector(2.488941, 1.873798, 0), App.Vector(2.536381, 1.9063, 0), App.Vector(2.586528, 1.954128, 0), App.Vector(2.630673, 2.023226, 0), App.Vector(2.656673, 2.102688, 0), App.Vector(2.659569, 2.158731, 0), App.Vector(2.661064, 2.187671, 0)], [4, 1, 1, 1, 1, 1, 1, 1, 1, 1, 1, 1, 4], [0, 1.065314748, 2.056525647, 2.977365736, 3.853934255, 4.656397591, 5.425096493, 6.14721249, 6.826394842, 8.123232004, 9.372140726, 10.643011755, 12], False, 3, [1, 1, 1, 1, 1, 1, 1, 1, 1, 1, 1, 1, 1, 1, 1], False),  # 39
    Part.LineSegment(App.Vector(2.109983, 1.79364, 0), App.Vector(1.943116, 1.79364, 0)),  # 40
    Part.LineSegment(App.Vector(1.943116, 1.79364, 0), App.Vector(1.943116, 2.556461, 0)),  # 41
], False)
sketch4.addConstraint([
    Sketcher.Constraint("Block", 4),
    Sketcher.Constraint("Block", 5),
    Sketcher.Constraint("Block", 6),
    Sketcher.Constraint("Block", 9),
    Sketcher.Constraint("Block", 10),
    Sketcher.Constraint("Block", 11),
    Sketcher.Constraint("Block", 16),
    Sketcher.Constraint("Block", 17),
    Sketcher.Constraint("Block", 19),
    Sketcher.Constraint("Block", 20),
    Sketcher.Constraint("Block", 21),
    Sketcher.Constraint("Block", 26),
    Sketcher.Constraint("Block", 27),
    Sketcher.Constraint("Block", 28),
    Sketcher.Constraint("Block", 29),
    Sketcher.Constraint("Block", 30),
    Sketcher.Constraint("Block", 33),
    Sketcher.Constraint("Block", 34),
    Sketcher.Constraint("Block", 38),
    Sketcher.Constraint("Block", 39),
    Sketcher.Constraint("Coincident", 0, 2, 1, 1),
    Sketcher.Constraint("Coincident", 1, 2, 2, 1),
    Sketcher.Constraint("Coincident", 2, 2, 3, 1),
    Sketcher.Constraint("Coincident", 3, 2, 4, 2),
    Sketcher.Constraint("Coincident", 6, 1, 0, 1),
    Sketcher.Constraint("Coincident", 7, 2, 8, 1),
    Sketcher.Constraint("Coincident", 8, 2, 9, 2),
    Sketcher.Constraint("Coincident", 11, 1, 12, 1),
    Sketcher.Constraint("Coincident", 12, 2, 7, 1),
    Sketcher.Constraint("Coincident", 13, 2, 14, 1),
    Sketcher.Constraint("Coincident", 14, 2, 15, 1),
    Sketcher.Constraint("Coincident", 15, 2, 16, 2),
    Sketcher.Constraint("Coincident", 17, 1, 13, 1),
    Sketcher.Constraint("Coincident", 18, 2, 19, 2),
    Sketcher.Constraint("Coincident", 21, 1, 22, 1),
    Sketcher.Constraint("Coincident", 22, 2, 23, 1),
    Sketcher.Constraint("Coincident", 23, 2, 18, 1),
    Sketcher.Constraint("Coincident", 24, 2, 25, 1),
    Sketcher.Constraint("Coincident", 25, 2, 26, 2),
    Sketcher.Constraint("Coincident", 30, 1, 31, 1),
    Sketcher.Constraint("Coincident", 31, 2, 24, 1),
    Sketcher.Constraint("Coincident", 32, 2, 33, 2),
    Sketcher.Constraint("Coincident", 34, 1, 35, 1),
    Sketcher.Constraint("Coincident", 35, 2, 36, 1),
    Sketcher.Constraint("Coincident", 36, 2, 32, 1),
    Sketcher.Constraint("Coincident", 37, 2, 38, 2),
    Sketcher.Constraint("Coincident", 39, 1, 40, 1),
    Sketcher.Constraint("Coincident", 40, 2, 41, 1),
    Sketcher.Constraint("Coincident", 41, 2, 37, 1),
    Sketcher.Constraint("Horizontal", 0),
    Sketcher.Constraint("Vertical", 1),
    Sketcher.Constraint("Horizontal", 2),
    Sketcher.Constraint("Vertical", 3),
    Sketcher.Constraint("Vertical", 7),
    Sketcher.Constraint("Horizontal", 8),
    Sketcher.Constraint("Horizontal", 12),
    Sketcher.Constraint("Horizontal", 13),
    Sketcher.Constraint("Vertical", 14),
    Sketcher.Constraint("Horizontal", 15),
    Sketcher.Constraint("Horizontal", 18),
    Sketcher.Constraint("Horizontal", 22),
    Sketcher.Constraint("Vertical", 23),
    Sketcher.Constraint("Vertical", 24),
    Sketcher.Constraint("Horizontal", 25),
    Sketcher.Constraint("Horizontal", 31),
    Sketcher.Constraint("Horizontal", 32),
    Sketcher.Constraint("Horizontal", 35),
    Sketcher.Constraint("Vertical", 36),
    Sketcher.Constraint("Horizontal", 37),
    Sketcher.Constraint("Horizontal", 40),
    Sketcher.Constraint("Vertical", 41),
    Sketcher.Constraint("Horizontal", 2, 2, 14, 2),
    Sketcher.Constraint("Vertical", 3, 2, 7, 2),
    Sketcher.Constraint("Vertical", 36, 2, 40, 2),
    Sketcher.Constraint("DistanceX", 0, 2, 0, 1, 0.701122),
    Sketcher.Constraint("DistanceX", 32, 1, 32, 2, 0.15004),
    Sketcher.Constraint("DistanceX", 13, 2, 13, 1, 0.791567),
    Sketcher.Constraint("DistanceX", 18, 1, 18, 2, 0.239784),
    Sketcher.Constraint("DistanceX", 25, 1, 25, 2, 0.984375),
])
pocket3 = body.newObject("PartDesign::Pocket", "Pocket002")
pocket3.Profile = sketch4
pocket3.Length = 2

doc.recompute()
